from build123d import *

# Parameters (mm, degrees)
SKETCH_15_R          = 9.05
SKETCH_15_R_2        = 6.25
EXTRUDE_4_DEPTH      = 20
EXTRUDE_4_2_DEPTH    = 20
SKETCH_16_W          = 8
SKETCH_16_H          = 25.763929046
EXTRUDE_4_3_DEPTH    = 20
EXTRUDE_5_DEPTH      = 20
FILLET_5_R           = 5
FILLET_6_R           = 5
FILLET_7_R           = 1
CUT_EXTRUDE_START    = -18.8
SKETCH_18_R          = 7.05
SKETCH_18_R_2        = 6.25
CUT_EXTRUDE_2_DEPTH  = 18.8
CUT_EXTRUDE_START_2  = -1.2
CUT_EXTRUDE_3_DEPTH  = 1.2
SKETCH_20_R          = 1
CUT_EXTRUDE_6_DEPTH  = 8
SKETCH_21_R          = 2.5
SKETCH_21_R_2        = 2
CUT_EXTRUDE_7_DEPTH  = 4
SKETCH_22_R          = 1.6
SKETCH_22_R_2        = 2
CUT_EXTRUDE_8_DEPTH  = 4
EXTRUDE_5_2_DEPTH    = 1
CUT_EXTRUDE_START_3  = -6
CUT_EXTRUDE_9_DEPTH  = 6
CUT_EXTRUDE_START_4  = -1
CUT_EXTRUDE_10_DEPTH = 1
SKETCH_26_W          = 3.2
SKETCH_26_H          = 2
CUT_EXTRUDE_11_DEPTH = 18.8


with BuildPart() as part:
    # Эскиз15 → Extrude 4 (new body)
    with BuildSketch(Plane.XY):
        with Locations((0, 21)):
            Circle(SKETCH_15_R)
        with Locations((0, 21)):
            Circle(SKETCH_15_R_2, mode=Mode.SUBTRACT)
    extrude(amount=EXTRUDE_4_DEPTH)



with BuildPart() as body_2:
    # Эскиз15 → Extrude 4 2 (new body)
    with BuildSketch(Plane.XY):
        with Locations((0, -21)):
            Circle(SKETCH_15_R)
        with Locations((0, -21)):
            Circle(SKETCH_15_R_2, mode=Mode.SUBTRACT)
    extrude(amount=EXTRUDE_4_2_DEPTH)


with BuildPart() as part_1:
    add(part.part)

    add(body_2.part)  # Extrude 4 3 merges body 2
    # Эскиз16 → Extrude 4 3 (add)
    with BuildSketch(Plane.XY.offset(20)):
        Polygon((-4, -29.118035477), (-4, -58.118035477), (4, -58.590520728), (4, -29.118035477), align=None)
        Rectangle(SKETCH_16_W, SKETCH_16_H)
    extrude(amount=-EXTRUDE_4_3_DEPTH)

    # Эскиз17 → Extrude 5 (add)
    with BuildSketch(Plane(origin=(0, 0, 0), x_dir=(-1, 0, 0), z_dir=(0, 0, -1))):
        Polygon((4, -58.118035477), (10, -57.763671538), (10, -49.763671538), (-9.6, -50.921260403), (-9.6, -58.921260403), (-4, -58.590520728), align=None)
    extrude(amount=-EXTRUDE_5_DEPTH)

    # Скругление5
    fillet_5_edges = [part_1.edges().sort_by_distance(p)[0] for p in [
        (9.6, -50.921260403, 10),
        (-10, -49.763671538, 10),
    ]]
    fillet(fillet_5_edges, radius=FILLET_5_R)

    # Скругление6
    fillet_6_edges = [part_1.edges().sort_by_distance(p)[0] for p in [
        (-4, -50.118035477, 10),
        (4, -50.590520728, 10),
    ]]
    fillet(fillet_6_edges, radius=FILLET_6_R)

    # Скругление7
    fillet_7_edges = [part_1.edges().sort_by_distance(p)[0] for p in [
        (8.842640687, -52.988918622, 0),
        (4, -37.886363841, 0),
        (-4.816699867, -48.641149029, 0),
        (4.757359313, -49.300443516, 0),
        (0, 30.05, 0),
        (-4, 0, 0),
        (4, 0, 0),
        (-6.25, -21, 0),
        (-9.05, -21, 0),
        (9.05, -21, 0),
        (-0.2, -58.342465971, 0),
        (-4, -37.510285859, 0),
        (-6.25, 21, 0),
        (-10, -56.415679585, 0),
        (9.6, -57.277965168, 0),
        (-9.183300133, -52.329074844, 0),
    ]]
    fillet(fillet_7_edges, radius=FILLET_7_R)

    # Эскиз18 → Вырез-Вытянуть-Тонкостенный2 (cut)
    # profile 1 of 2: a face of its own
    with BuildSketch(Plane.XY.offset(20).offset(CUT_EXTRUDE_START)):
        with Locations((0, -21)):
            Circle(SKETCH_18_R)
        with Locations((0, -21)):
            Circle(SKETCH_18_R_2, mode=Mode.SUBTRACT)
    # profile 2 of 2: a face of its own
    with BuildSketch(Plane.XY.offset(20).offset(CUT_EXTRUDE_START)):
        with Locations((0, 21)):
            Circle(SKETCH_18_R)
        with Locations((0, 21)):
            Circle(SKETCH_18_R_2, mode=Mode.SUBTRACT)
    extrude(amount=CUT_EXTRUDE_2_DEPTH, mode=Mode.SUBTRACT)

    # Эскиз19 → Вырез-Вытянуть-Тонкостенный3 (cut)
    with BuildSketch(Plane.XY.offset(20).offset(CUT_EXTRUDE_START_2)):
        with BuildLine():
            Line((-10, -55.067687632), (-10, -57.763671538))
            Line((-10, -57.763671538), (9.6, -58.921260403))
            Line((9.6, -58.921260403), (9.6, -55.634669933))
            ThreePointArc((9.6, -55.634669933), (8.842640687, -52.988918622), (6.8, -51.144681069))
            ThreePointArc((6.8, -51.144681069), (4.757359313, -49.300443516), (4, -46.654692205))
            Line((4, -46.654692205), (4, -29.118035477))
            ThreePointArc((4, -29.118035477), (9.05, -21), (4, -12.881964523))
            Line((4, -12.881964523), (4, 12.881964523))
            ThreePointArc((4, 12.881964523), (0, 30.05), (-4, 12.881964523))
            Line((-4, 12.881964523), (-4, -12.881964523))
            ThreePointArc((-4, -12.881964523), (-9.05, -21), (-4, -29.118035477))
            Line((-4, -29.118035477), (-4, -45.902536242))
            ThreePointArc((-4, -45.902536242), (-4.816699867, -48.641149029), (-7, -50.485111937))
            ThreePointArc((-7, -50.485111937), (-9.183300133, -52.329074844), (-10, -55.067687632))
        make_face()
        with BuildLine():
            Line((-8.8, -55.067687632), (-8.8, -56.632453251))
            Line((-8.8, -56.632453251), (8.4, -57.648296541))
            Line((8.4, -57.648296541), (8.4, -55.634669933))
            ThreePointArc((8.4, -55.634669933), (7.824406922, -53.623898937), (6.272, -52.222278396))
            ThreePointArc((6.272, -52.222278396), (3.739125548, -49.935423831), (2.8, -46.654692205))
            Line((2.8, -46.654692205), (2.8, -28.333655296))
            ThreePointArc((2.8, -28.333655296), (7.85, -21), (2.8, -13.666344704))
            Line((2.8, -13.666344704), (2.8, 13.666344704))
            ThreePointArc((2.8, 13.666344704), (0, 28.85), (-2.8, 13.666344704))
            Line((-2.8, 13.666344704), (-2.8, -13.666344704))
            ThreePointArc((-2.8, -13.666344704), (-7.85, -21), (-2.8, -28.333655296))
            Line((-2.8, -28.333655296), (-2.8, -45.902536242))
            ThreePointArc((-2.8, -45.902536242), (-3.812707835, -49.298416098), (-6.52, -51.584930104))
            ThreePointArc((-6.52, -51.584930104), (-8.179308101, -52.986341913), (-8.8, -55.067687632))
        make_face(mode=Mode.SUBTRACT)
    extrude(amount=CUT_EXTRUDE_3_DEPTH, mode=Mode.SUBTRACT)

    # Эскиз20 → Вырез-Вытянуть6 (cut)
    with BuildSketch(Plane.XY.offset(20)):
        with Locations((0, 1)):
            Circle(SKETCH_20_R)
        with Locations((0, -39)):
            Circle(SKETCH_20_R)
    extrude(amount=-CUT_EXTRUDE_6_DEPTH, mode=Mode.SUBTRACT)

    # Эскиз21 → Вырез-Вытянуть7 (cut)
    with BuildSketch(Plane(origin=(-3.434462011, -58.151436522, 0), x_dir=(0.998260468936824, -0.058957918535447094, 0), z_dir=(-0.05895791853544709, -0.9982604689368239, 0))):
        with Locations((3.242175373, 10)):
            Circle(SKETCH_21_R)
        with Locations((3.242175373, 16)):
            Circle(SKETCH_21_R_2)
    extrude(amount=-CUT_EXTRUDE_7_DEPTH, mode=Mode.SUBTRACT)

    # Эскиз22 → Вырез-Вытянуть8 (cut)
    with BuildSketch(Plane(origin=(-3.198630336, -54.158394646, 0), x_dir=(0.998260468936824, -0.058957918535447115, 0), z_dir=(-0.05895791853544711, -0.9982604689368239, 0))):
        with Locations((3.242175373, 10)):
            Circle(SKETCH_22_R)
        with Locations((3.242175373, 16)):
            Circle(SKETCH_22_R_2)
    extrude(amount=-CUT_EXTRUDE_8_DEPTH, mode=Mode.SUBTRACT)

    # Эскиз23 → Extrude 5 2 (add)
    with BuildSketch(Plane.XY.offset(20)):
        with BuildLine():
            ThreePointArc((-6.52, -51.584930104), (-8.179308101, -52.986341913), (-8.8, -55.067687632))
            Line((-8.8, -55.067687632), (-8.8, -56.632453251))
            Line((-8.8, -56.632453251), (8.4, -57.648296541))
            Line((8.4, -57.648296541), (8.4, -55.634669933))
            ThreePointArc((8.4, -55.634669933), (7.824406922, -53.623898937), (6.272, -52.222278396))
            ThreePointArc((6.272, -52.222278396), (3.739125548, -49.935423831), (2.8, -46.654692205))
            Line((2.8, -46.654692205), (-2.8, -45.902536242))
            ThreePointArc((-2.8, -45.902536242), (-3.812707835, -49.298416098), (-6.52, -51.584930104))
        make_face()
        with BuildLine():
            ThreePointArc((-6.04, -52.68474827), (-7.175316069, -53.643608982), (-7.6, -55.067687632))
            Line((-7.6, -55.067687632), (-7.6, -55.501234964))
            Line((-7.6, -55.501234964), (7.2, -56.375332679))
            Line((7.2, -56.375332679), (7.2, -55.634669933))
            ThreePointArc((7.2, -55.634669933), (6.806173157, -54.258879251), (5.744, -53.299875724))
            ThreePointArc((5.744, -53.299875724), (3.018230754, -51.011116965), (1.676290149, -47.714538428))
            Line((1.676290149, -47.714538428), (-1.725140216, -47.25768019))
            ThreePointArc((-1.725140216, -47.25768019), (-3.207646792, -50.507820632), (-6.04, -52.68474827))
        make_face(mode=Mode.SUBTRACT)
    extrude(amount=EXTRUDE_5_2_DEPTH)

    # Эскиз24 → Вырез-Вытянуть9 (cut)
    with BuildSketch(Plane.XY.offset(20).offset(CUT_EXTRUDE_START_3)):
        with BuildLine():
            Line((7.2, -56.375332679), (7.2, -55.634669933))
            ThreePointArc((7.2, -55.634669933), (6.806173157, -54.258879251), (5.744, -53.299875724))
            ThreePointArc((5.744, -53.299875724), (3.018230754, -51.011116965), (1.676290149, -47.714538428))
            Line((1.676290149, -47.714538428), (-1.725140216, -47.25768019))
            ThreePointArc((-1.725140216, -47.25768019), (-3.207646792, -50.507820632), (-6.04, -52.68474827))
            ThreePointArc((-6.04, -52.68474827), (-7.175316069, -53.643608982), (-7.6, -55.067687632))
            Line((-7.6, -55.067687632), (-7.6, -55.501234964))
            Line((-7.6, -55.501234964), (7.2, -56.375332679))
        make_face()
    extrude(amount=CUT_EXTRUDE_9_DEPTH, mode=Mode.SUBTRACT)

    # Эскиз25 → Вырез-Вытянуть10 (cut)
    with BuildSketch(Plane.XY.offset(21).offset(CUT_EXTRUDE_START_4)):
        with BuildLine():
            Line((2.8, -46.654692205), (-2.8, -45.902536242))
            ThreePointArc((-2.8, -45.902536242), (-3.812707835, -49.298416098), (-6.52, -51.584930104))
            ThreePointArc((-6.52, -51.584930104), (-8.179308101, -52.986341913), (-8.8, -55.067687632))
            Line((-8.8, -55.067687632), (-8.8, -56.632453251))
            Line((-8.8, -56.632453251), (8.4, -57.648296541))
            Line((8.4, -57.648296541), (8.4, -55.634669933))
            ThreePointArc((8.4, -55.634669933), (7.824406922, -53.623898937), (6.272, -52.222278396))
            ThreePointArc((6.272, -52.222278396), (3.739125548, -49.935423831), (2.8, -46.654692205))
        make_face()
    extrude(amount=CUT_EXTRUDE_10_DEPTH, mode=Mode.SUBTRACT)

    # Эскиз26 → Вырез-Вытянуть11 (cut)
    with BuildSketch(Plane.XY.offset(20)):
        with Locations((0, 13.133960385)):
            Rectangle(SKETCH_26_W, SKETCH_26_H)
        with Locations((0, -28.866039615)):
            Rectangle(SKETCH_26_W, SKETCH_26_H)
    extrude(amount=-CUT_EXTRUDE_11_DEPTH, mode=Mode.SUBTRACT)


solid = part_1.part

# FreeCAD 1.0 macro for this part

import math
import FreeCAD as App
import Part
import Sketcher
Q = App.Units.Quantity


def edges_at(feature, points):
    """Names of the edges that pass closest to the given points."""
    edges = feature.Shape.Edges
    near = lambda p: min(range(len(edges)), key=lambda i: edges[i].distToShape(Part.Vertex(*p))[0])
    return sorted({f"Edge{near(p) + 1}" for p in points})


def add_polygon(sketch, points):
    """Adds a closed chain of lines whose ends are joined by coincident constraints."""
    first, n = sketch.GeometryCount, len(points)
    for a, b in zip(points, points[1:] + points[:1]):
        sketch.addGeometry(Part.LineSegment(App.Vector(*a, 0), App.Vector(*b, 0)), False)
    for i in range(n):
        sketch.addConstraint(Sketcher.Constraint("Coincident", first + i, 2, first + (i + 1) % n, 1))

doc = App.newDocument("Part")
params = doc.addObject("Spreadsheet::Sheet", "Params")
for row, (alias, value) in enumerate([
    ("sketch1_diameter", "18.1 mm"),
    ("sketch1_diameter2", "12.5 mm"),
    ("pad1_length", "20 mm"),
    ("sketch2_diameter", "18.1 mm"),
    ("sketch2_diameter2", "12.5 mm"),
    ("pad2_length", "20 mm"),
    ("sketch3_width", "8 mm"),
    ("sketch3_height", "29 mm"),
    ("pad3_length", "20 mm"),
    ("sketch4_height", "8 mm"),
    ("pad4_length", "20 mm"),
    ("fillet_radius", "5 mm"),
    ("fillet2_radius", "5 mm"),
    ("fillet3_radius", "1 mm"),
    ("sketch5_diameter", "14.1 mm"),
    ("sketch5_diameter2", "12.5 mm"),
    ("pocket1_length", "18.8 mm"),
    ("sketch6_radius", "5 mm"),
    ("sketch6_radius2", "3.8 mm"),
    ("sketch6_radius3", "9.05 mm"),
    ("sketch6_radius4", "7.85 mm"),
    ("pocket2_length", "1.2 mm"),
    ("sketch7_diameter", "2 mm"),
    ("pocket3_length", "8 mm"),
    ("sketch8_diameter", "5 mm"),
    ("sketch8_diameter2", "4 mm"),
    ("pocket4_length", "4 mm"),
    ("sketch9_diameter", "4 mm"),
    ("sketch9_diameter2", "3.2 mm"),
    ("pocket5_length", "4 mm"),
    ("sketch10_radius", "3.8 mm"),
    ("sketch10_radius2", "6.2 mm"),
    ("sketch10_radius3", "2.6 mm"),
    ("pad5_length", "1 mm"),
    ("sketch11_radius", "2.6 mm"),
    ("sketch11_radius2", "7.4 mm"),
    ("pocket6_length", "6 mm"),
    ("sketch12_radius", "6.2 mm"),
    ("sketch12_radius2", "3.8 mm"),
    ("pocket7_length", "1 mm"),
    ("sketch13_height", "2 mm"),
    ("sketch13_width", "3.2 mm"),
    ("pocket8_length", "18.8 mm"),
], start=1):
    params.set(f"A{row}", alias)
    params.set(f"B{row}", "=" + value)
    params.setAlias(f"B{row}", alias)

body = doc.addObject("PartDesign::Body", "Body")

# Sketch on XY plane
sketch1 = body.newObject("Sketcher::SketchObject", "Sketch")
sketch1.AttachmentSupport = (doc.getObject("XY_Plane"), [""])
sketch1.MapMode = "FlatFace"
sketch1.addGeometry([
    Part.Circle(App.Vector(0, 21, 0), App.Vector(0, 0, 1), 9.05),
    Part.Circle(App.Vector(0, 21, 0), App.Vector(0, 0, 1), 6.25),
], False)
sketch1.addConstraint([
    Sketcher.Constraint("Coincident", 1, 3, 0, 3),
    Sketcher.Constraint("PointOnObject", 0, 3, -2),
    Sketcher.Constraint("Diameter", 0, Q("18.1 mm")),
    Sketcher.Constraint("Diameter", 1, Q("12.5 mm")),
    Sketcher.Constraint("DistanceY", -1, 1, 0, 3, Q("21 mm")),
])
sketch1.setExpression("Constraints[2]", "Params.sketch1_diameter")
sketch1.setExpression("Constraints[3]", "Params.sketch1_diameter2")
pad1 = body.newObject("PartDesign::Pad", "Pad")
pad1.Profile = sketch1
pad1.setExpression("Length", "Params.pad1_length")
body2 = doc.addObject("PartDesign::Body", "Body001")

# Sketch on XY plane
sketch2 = body2.newObject("Sketcher::SketchObject", "Sketch001")
sketch2.AttachmentSupport = (doc.getObject("XY_Plane001"), [""])
sketch2.MapMode = "FlatFace"
sketch2.addGeometry([
    Part.Circle(App.Vector(0, -21, 0), App.Vector(0, 0, 1), 9.05),
    Part.Circle(App.Vector(0, -21, 0), App.Vector(0, 0, 1), 6.25),
], False)
sketch2.addConstraint([
    Sketcher.Constraint("Coincident", 1, 3, 0, 3),
    Sketcher.Constraint("PointOnObject", 0, 3, -2),
    Sketcher.Constraint("Diameter", 0, Q("18.1 mm")),
    Sketcher.Constraint("Diameter", 1, Q("12.5 mm")),
    Sketcher.Constraint("DistanceY", 0, 3, -1, 1, Q("21 mm")),
])
sketch2.setExpression("Constraints[2]", "Params.sketch2_diameter")
sketch2.setExpression("Constraints[3]", "Params.sketch2_diameter2")
pad2 = body2.newObject("PartDesign::Pad", "Pad001")
pad2.Profile = sketch2
pad2.setExpression("Length", "Params.pad2_length")
body.AllowCompound = True
doc.recompute()

boolean = body.newObject("PartDesign::Boolean", "Boolean")
boolean.Type = "Fuse"
boolean.addObjects([body2])

# Sketch on XY plane
sketch3 = body.newObject("Sketcher::SketchObject", "Sketch002")
sketch3.AttachmentSupport = (doc.getObject("XY_Plane"), [""])
sketch3.MapMode = "FlatFace"
sketch3.AttachmentOffset = App.Placement(App.Vector(0, 0, 20), App.Rotation())
add_polygon(sketch3, [(-4, -29.118035), (-4, -58.118035), (4, -58.590521), (4, -29.118035)])  # lines 0-3
add_polygon(sketch3, [(-4, 12.881965), (-4, -12.881965), (4, -12.881965), (4, 12.881965)])  # lines 4-7
sketch3.addConstraint([
    Sketcher.Constraint("Vertical", 0),
    Sketcher.Constraint("Vertical", 2),
    Sketcher.Constraint("Horizontal", 3),
    Sketcher.Constraint("Vertical", 4),
    Sketcher.Constraint("Horizontal", 5),
    Sketcher.Constraint("Vertical", 6),
    Sketcher.Constraint("Horizontal", 7),
    Sketcher.Constraint("Symmetric", 4, 2, 6, 2, -1, 1),
    Sketcher.Constraint("Vertical", 3, 2, 4, 2),
    Sketcher.Constraint("Vertical", 2, 2, 5, 2),
    Sketcher.Constraint("DistanceX", 3, 2, 3, 1, Q("8 mm")),
    Sketcher.Constraint("DistanceY", 0, 2, 0, 1, Q("29 mm")),
    Sketcher.Constraint("DistanceY", 2, 2, 6, 2, Q("42 mm")),
    Sketcher.Constraint("Angle", 1, Q("-3.38 deg")),
    Sketcher.Constraint("DistanceY", 4, 2, 4, 1, Q("25.763929 mm")),
])
sketch3.setExpression("Constraints[18]", "Params.sketch3_width")
sketch3.setExpression("Constraints[19]", "Params.sketch3_height")
pad3 = body.newObject("PartDesign::Pad", "Pad002")
pad3.Profile = sketch3
pad3.setExpression("Length", "Params.pad3_length")
pad3.Reversed = True

# Sketch on XY plane
sketch4 = body.newObject("Sketcher::SketchObject", "Sketch003")
sketch4.AttachmentSupport = (doc.getObject("XY_Plane"), [""])
sketch4.MapMode = "FlatFace"
add_polygon(sketch4, [(-4, -58.118035), (-10, -57.763672), (-10, -49.763672), (9.6, -50.92126), (9.6, -58.92126), (4, -58.590521)])  # lines 0-5
sketch4.addConstraint([
    Sketcher.Constraint("Vertical", 1),
    Sketcher.Constraint("Vertical", 3),
    Sketcher.Constraint("Parallel", 0, 2),
    Sketcher.Constraint("Parallel", 2, 4),
    Sketcher.Constraint("Parallel", 4, 5),
    Sketcher.Constraint("DistanceY", 1, 1, 1, 2, Q("8 mm")),
    Sketcher.Constraint("DistanceX", 0, 2, -1, 1, Q("10 mm")),
    Sketcher.Constraint("DistanceX", -1, 1, 4, 2, Q("4 mm")),
    Sketcher.Constraint("DistanceX", 5, 2, -1, 1, Q("4 mm")),
    Sketcher.Constraint("DistanceX", -1, 1, 2, 2, Q("9.6 mm")),
    Sketcher.Constraint("Angle", 0, Q("176.62 deg")),
    Sketcher.Constraint("DistanceY", 0, 2, -1, 1, Q("57.763672 mm")),
])
sketch4.setExpression("Constraints[11]", "Params.sketch4_height")
pad4 = body.newObject("PartDesign::Pad", "Pad003")
pad4.Profile = sketch4
pad4.setExpression("Length", "Params.pad4_length")
doc.recompute()

fillet = body.newObject("PartDesign::Fillet", "Fillet")
fillet.Base = (pad4, edges_at(pad4, [(9.6, -50.921, 10), (-10, -49.764, 10)]))
fillet.setExpression("Radius", "Params.fillet_radius")
doc.recompute()

fillet2 = body.newObject("PartDesign::Fillet", "Fillet001")
fillet2.Base = (fillet, edges_at(fillet, [(-4, -50.118, 10), (4, -50.591, 10)]))
fillet2.setExpression("Radius", "Params.fillet2_radius")
doc.recompute()

fillet3 = body.newObject("PartDesign::Fillet", "Fillet002")
fillet3.Base = (fillet2, edges_at(fillet2, [
    (8.843, -52.989, 0),
    (4, -37.886, 0),
    (-4.817, -48.641, 0),
    (4.757, -49.3, 0),
    (0, 30.05, 0),
    (-4, 0, 0),
    (4, 0, 0),
    (-6.25, -21, 0),
    (-9.05, -21, 0),
    (9.05, -21, 0),
    (0, -58.354, 0),
    (-4, -37.51, 0),
    (-6.25, 21, 0),
    (-10, -56.416, 0),
    (9.6, -57.278, 0),
    (-9.183, -52.329, 0),
]))
fillet3.setExpression("Radius", "Params.fillet3_radius")

# Sketch on XY plane
sketch5 = body.newObject("Sketcher::SketchObject", "Sketch004")
sketch5.AttachmentSupport = (doc.getObject("XY_Plane"), [""])
sketch5.MapMode = "FlatFace"
sketch5.AttachmentOffset = App.Placement(App.Vector(0, 0, 1.2), App.Rotation())
sketch5.addGeometry([
    Part.Circle(App.Vector(0, -21, 0), App.Vector(0, 0, 1), 7.05),
    Part.Circle(App.Vector(0, -21, 0), App.Vector(0, 0, 1), 6.25),
    Part.Circle(App.Vector(0, 21, 0), App.Vector(0, 0, 1), 7.05),
    Part.Circle(App.Vector(0, 21, 0), App.Vector(0, 0, 1), 6.25),
], False)
sketch5.addConstraint([
    Sketcher.Constraint("Coincident", 1, 3, 0, 3),
    Sketcher.Constraint("Coincident", 3, 3, 2, 3),
    Sketcher.Constraint("Equal", 0, 2),
    Sketcher.Constraint("Equal", 1, 3),
    Sketcher.Constraint("Symmetric", 0, 3, 2, 3, -1, 1),
    Sketcher.Constraint("PointOnObject", 0, 3, -2),
    Sketcher.Constraint("Diameter", 0, Q("14.1 mm")),
    Sketcher.Constraint("Diameter", 1, Q("12.5 mm")),
    Sketcher.Constraint("DistanceY", 0, 3, -1, 1, Q("21 mm")),
])
sketch5.setExpression("Constraints[6]", "Params.sketch5_diameter")
sketch5.setExpression("Constraints[7]", "Params.sketch5_diameter2")
pocket1 = body.newObject("PartDesign::Pocket", "Pocket")
pocket1.Profile = sketch5
pocket1.setExpression("Length", "Params.pocket1_length")
pocket1.Reversed = True

# Sketch on XY plane
sketch6 = body.newObject("Sketcher::SketchObject", "Sketch005")
sketch6.AttachmentSupport = (doc.getObject("XY_Plane"), [""])
sketch6.MapMode = "FlatFace"
sketch6.AttachmentOffset = App.Placement(App.Vector(0, 0, 18.8), App.Rotation())
sketch6.addGeometry([
    Part.LineSegment(App.Vector(-10, -55.067688, 0), App.Vector(-10, -57.763672, 0)),  # 0
    Part.LineSegment(App.Vector(-10, -57.763672, 0), App.Vector(9.6, -58.92126, 0)),  # 1
    Part.LineSegment(App.Vector(9.6, -58.92126, 0), App.Vector(9.6, -55.63467, 0)),  # 2
    Part.ArcOfCircle(Part.Circle(App.Vector(4.6, -55.63467, 0), App.Vector(0, 0, 1), 5), math.radians(0), math.radians(63.896119)),  # 3
    Part.ArcOfCircle(Part.Circle(App.Vector(9, -46.654692, 0), App.Vector(0, 0, 1), 5), math.radians(180), math.radians(243.896119)),  # 4
    Part.LineSegment(App.Vector(4, -46.654692, 0), App.Vector(4, -29.118035, 0)),  # 5
    Part.ArcOfCircle(Part.Circle(App.Vector(0, -21, 0), App.Vector(0, 0, 1), 9.05), math.radians(-63.769147), math.radians(63.769147)),  # 6
    Part.LineSegment(App.Vector(4, -12.881965, 0), App.Vector(4, 12.881965, 0)),  # 7
    Part.ArcOfCircle(Part.Circle(App.Vector(0, 21, 0), App.Vector(0, 0, 1), 9.05), math.radians(-63.769147), math.radians(243.769147)),  # 8
    Part.LineSegment(App.Vector(-4, 12.881965, 0), App.Vector(-4, -12.881965, 0)),  # 9
    Part.ArcOfCircle(Part.Circle(App.Vector(0, -21, 0), App.Vector(0, 0, 1), 9.05), math.radians(116.230853), math.radians(243.769147)),  # 10
    Part.LineSegment(App.Vector(-4, -29.118035, 0), App.Vector(-4, -45.902536, 0)),  # 11
    Part.ArcOfCircle(Part.Circle(App.Vector(-9, -45.902536, 0), App.Vector(0, 0, 1), 5), math.radians(-66.421822), math.radians(0)),  # 12
    Part.ArcOfCircle(Part.Circle(App.Vector(-5, -55.067688, 0), App.Vector(0, 0, 1), 5), math.radians(113.578178), math.radians(180)),  # 13
    Part.LineSegment(App.Vector(-8.8, -56.632453, 0), App.Vector(-8.8, -55.067688, 0)),  # 14
    Part.ArcOfCircle(Part.Circle(App.Vector(-5, -55.067688, 0), App.Vector(0, 0, 1), 3.8), math.radians(113.578178), math.radians(180)),  # 15
    Part.ArcOfCircle(Part.Circle(App.Vector(-9, -45.902536, 0), App.Vector(0, 0, 1), 6.2), math.radians(-66.421822), math.radians(0)),  # 16
    Part.LineSegment(App.Vector(-2.8, -45.902536, 0), App.Vector(-2.8, -28.333655, 0)),  # 17
    Part.ArcOfCircle(Part.Circle(App.Vector(0, -21, 0), App.Vector(0, 0, 1), 7.85), math.radians(110.896927), math.radians(249.103073)),  # 18
    Part.LineSegment(App.Vector(-2.8, -13.666345, 0), App.Vector(-2.8, 13.666345, 0)),  # 19
    Part.ArcOfCircle(Part.Circle(App.Vector(0, 21, 0), App.Vector(0, 0, 1), 7.85), math.radians(-69.103073), math.radians(249.103073)),  # 20
    Part.LineSegment(App.Vector(2.8, 13.666345, 0), App.Vector(2.8, -13.666345, 0)),  # 21
    Part.ArcOfCircle(Part.Circle(App.Vector(0, -21, 0), App.Vector(0, 0, 1), 7.85), math.radians(-69.103073), math.radians(69.103073)),  # 22
    Part.LineSegment(App.Vector(2.8, -28.333655, 0), App.Vector(2.8, -46.654692, 0)),  # 23
    Part.ArcOfCircle(Part.Circle(App.Vector(9, -46.654692, 0), App.Vector(0, 0, 1), 6.2), math.radians(180), math.radians(243.896119)),  # 24
    Part.ArcOfCircle(Part.Circle(App.Vector(4.6, -55.63467, 0), App.Vector(0, 0, 1), 3.8), math.radians(0), math.radians(63.896119)),  # 25
    Part.LineSegment(App.Vector(8.4, -55.63467, 0), App.Vector(8.4, -57.648297, 0)),  # 26
    Part.LineSegment(App.Vector(8.4, -57.648297, 0), App.Vector(-8.8, -56.632453, 0)),  # 27
], False)
sketch6.addConstraint([
    Sketcher.Constraint("Coincident", 0, 2, 1, 1),
    Sketcher.Constraint("Coincident", 1, 2, 2, 1),
    Sketcher.Constraint("Tangent", 2, 2, 3, 1),
    Sketcher.Constraint("Tangent", 3, 2, 4, 2),
    Sketcher.Constraint("Tangent", 4, 1, 5, 1),
    Sketcher.Constraint("Coincident", 5, 2, 6, 1),
    Sketcher.Constraint("Coincident", 6, 2, 7, 1),
    Sketcher.Constraint("Coincident", 7, 2, 8, 1),
    Sketcher.Constraint("Coincident", 8, 2, 9, 1),
    Sketcher.Constraint("Coincident", 9, 2, 10, 1),
    Sketcher.Constraint("Coincident", 10, 2, 11, 1),
    Sketcher.Constraint("Tangent", 11, 2, 12, 2),
    Sketcher.Constraint("Tangent", 12, 1, 13, 1),
    Sketcher.Constraint("Tangent", 13, 2, 0, 1),
    Sketcher.Constraint("Tangent", 14, 2, 15, 2),
    Sketcher.Constraint("Tangent", 15, 1, 16, 1),
    Sketcher.Constraint("Tangent", 16, 2, 17, 1),
    Sketcher.Constraint("Coincident", 17, 2, 18, 2),
    Sketcher.Constraint("Coincident", 18, 1, 19, 1),
    Sketcher.Constraint("Coincident", 19, 2, 20, 2),
    Sketcher.Constraint("Coincident", 20, 1, 21, 1),
    Sketcher.Constraint("Coincident", 21, 2, 22, 2),
    Sketcher.Constraint("Coincident", 22, 1, 23, 1),
    Sketcher.Constraint("Tangent", 23, 2, 24, 1),
    Sketcher.Constraint("Tangent", 24, 2, 25, 2),
    Sketcher.Constraint("Tangent", 25, 1, 26, 1),
    Sketcher.Constraint("Coincident", 26, 2, 27, 1),
    Sketcher.Constraint("Coincident", 27, 2, 14, 1),
    Sketcher.Constraint("Vertical", 0),
    Sketcher.Constraint("Vertical", 2),
    Sketcher.Constraint("Vertical", 5),
    Sketcher.Constraint("Vertical", 7),
    Sketcher.Constraint("Vertical", 9),
    Sketcher.Constraint("Vertical", 11),
    Sketcher.Constraint("Vertical", 14),
    Sketcher.Constraint("Vertical", 17),
    Sketcher.Constraint("Vertical", 19),
    Sketcher.Constraint("Vertical", 21),
    Sketcher.Constraint("Vertical", 23),
    Sketcher.Constraint("Vertical", 26),
    Sketcher.Constraint("Coincident", 10, 3, 6, 3),
    Sketcher.Constraint("Coincident", 15, 3, 13, 3),
    Sketcher.Constraint("Coincident", 16, 3, 12, 3),
    Sketcher.Constraint("Coincident", 18, 3, 6, 3),
    Sketcher.Constraint("Coincident", 20, 3, 8, 3),
    Sketcher.Constraint("Coincident", 22, 3, 6, 3),
    Sketcher.Constraint("Coincident", 24, 3, 4, 3),
    Sketcher.Constraint("Coincident", 25, 3, 3, 3),
    Sketcher.Constraint("Equal", 3, 4),
    Sketcher.Constraint("Equal", 6, 8),
    Sketcher.Constraint("Equal", 8, 10),
    Sketcher.Constraint("Equal", 4, 12),
    Sketcher.Constraint("Equal", 12, 13),
    Sketcher.Constraint("Equal", 18, 20),
    Sketcher.Constraint("Equal", 20, 22),
    Sketcher.Constraint("Equal", 16, 24),
    Sketcher.Constraint("Symmetric", 6, 3, 8, 3, -1, 1),
    Sketcher.Constraint("Symmetric", 7, 2, 8, 2, -2),
    Sketcher.Constraint("Parallel", 1, 27),
    Sketcher.Constraint("Horizontal", 5, 2, 10, 2),
    Sketcher.Constraint("Horizontal", 19, 2, 20, 1),
    Sketcher.Constraint("Vertical", 5, 2, 6, 2),
    Sketcher.Constraint("Vertical", 17, 2, 18, 1),
    Sketcher.Constraint("Radius", 3, Q("5 mm")),
    Sketcher.Constraint("Radius", 15, Q("3.8 mm")),
    Sketcher.Constraint("Radius", 6, Q("9.05 mm")),
    Sketcher.Constraint("Radius", 18, Q("7.85 mm")),
    Sketcher.Constraint("DistanceX", -1, 1, 4, 3, Q("9 mm")),
    Sketcher.Constraint("DistanceY", 6, 3, -1, 1, Q("21 mm")),
    Sketcher.Constraint("DistanceX", 13, 3, -1, 1, Q("5 mm")),
    Sketcher.Constraint("DistanceX", 23, 2, 3, 2, Q("4 mm")),
    Sketcher.Constraint("Angle", 1, Q("-3.38 deg")),
    Sketcher.Constraint("DistanceY", 11, 2, 11, 1, Q("16.784501 mm")),
    Sketcher.Constraint("DistanceY", 0, 2, 25, 3, Q("2.129002 mm")),
    Sketcher.Constraint("DistanceY", 0, 2, 0, 1, Q("2.695984 mm")),
    Sketcher.Constraint("DistanceY", 14, 1, 14, 2, Q("1.564766 mm")),
])
sketch6.setExpression("Constraints[63]", "Params.sketch6_radius")
sketch6.setExpression("Constraints[64]", "Params.sketch6_radius2")
sketch6.setExpression("Constraints[65]", "Params.sketch6_radius3")
sketch6.setExpression("Constraints[66]", "Params.sketch6_radius4")
pocket2 = body.newObject("PartDesign::Pocket", "Pocket001")
pocket2.Profile = sketch6
pocket2.setExpression("Length", "Params.pocket2_length")
pocket2.Reversed = True

# Sketch on XY plane
sketch7 = body.newObject("Sketcher::SketchObject", "Sketch006")
sketch7.AttachmentSupport = (doc.getObject("XY_Plane"), [""])
sketch7.MapMode = "FlatFace"
sketch7.AttachmentOffset = App.Placement(App.Vector(0, 0, 20), App.Rotation())
sketch7.addGeometry([
    Part.Circle(App.Vector(0, 1, 0), App.Vector(0, 0, 1), 1),
    Part.Circle(App.Vector(0, -39, 0), App.Vector(0, 0, 1), 1),
], False)
sketch7.addConstraint([
    Sketcher.Constraint("Equal", 0, 1),
    Sketcher.Constraint("PointOnObject", 0, 3, -2),
    Sketcher.Constraint("PointOnObject", 1, 3, -2),
    Sketcher.Constraint("Diameter", 0, Q("2 mm")),
    Sketcher.Constraint("DistanceY", -1, 1, 0, 3, Q("1 mm")),
    Sketcher.Constraint("DistanceY", 1, 3, -1, 1, Q("39 mm")),
])
sketch7.setExpression("Constraints[3]", "Params.sketch7_diameter")
pocket3 = body.newObject("PartDesign::Pocket", "Pocket002")
pocket3.Profile = sketch7
pocket3.setExpression("Length", "Params.pocket3_length")

# Sketch on an angled plane
sketch8 = body.newObject("Sketcher::SketchObject", "Sketch007")
sketch8.Placement = App.Placement(App.Vector(-3.434462, -58.151437, 0), App.Rotation(App.Vector(0.998260469, -0.058957919, 0), App.Vector(0, 0, 1), App.Vector(-0.058957919, -0.998260469, 0), "ZXY"))
sketch8.addGeometry([
    Part.Circle(App.Vector(3.242175, 10, 0), App.Vector(0, 0, 1), 2.5),
    Part.Circle(App.Vector(3.242175, 16, 0), App.Vector(0, 0, 1), 2),
], False)
sketch8.addConstraint([
    Sketcher.Constraint("Vertical", 0, 3, 1, 3),
    Sketcher.Constraint("Diameter", 0, Q("5 mm")),
    Sketcher.Constraint("Diameter", 1, Q("4 mm")),
    Sketcher.Constraint("DistanceY", -1, 1, 0, 3, Q("10 mm")),
    Sketcher.Constraint("DistanceY", -1, 1, 1, 3, Q("16 mm")),
    Sketcher.Constraint("DistanceX", -1, 1, 0, 3, Q("3.242175 mm")),
])
sketch8.setExpression("Constraints[1]", "Params.sketch8_diameter")
sketch8.setExpression("Constraints[2]", "Params.sketch8_diameter2")
pocket4 = body.newObject("PartDesign::Pocket", "Pocket003")
pocket4.Profile = sketch8
pocket4.setExpression("Length", "Params.pocket4_length")

# Sketch on an angled plane
sketch9 = body.newObject("Sketcher::SketchObject", "Sketch008")
sketch9.Placement = App.Placement(App.Vector(-3.19863, -54.158395, 0), App.Rotation(App.Vector(0.998260469, -0.058957919, 0), App.Vector(0, 0, 1), App.Vector(-0.058957919, -0.998260469, 0), "ZXY"))
sketch9.addGeometry([
    Part.Circle(App.Vector(3.242175, 10, 0), App.Vector(0, 0, 1), 1.6),
    Part.Circle(App.Vector(3.242175, 16, 0), App.Vector(0, 0, 1), 2),
], False)
sketch9.addConstraint([
    Sketcher.Constraint("Vertical", 0, 3, 1, 3),
    Sketcher.Constraint("Diameter", 1, Q("4 mm")),
    Sketcher.Constraint("Diameter", 0, Q("3.2 mm")),
    Sketcher.Constraint("DistanceY", -1, 1, 0, 3, Q("10 mm")),
    Sketcher.Constraint("DistanceY", -1, 1, 1, 3, Q("16 mm")),
    Sketcher.Constraint("DistanceX", -1, 1, 0, 3, Q("3.242175 mm")),
])
sketch9.setExpression("Constraints[1]", "Params.sketch9_diameter")
sketch9.setExpression("Constraints[2]", "Params.sketch9_diameter2")
pocket5 = body.newObject("PartDesign::Pocket", "Pocket004")
pocket5.Profile = sketch9
pocket5.setExpression("Length", "Params.pocket5_length")

# Sketch on XY plane
sketch10 = body.newObject("Sketcher::SketchObject", "Sketch009")
sketch10.AttachmentSupport = (doc.getObject("XY_Plane"), [""])
sketch10.MapMode = "FlatFace"
sketch10.AttachmentOffset = App.Placement(App.Vector(0, 0, 20), App.Rotation())
sketch10.addGeometry([
    Part.ArcOfCircle(Part.Circle(App.Vector(-5, -55.067688, 0), App.Vector(0, 0, 1), 3.8), math.radians(113.578178), math.radians(180)),  # 0
    Part.LineSegment(App.Vector(-8.8, -55.067688, 0), App.Vector(-8.8, -56.632453, 0)),  # 1
    Part.LineSegment(App.Vector(-8.8, -56.632453, 0), App.Vector(8.4, -57.648297, 0)),  # 2
    Part.LineSegment(App.Vector(8.4, -57.648297, 0), App.Vector(8.4, -55.63467, 0)),  # 3
    Part.ArcOfCircle(Part.Circle(App.Vector(4.6, -55.63467, 0), App.Vector(0, 0, 1), 3.8), math.radians(0), math.radians(63.896119)),  # 4
    Part.ArcOfCircle(Part.Circle(App.Vector(9, -46.654692, 0), App.Vector(0, 0, 1), 6.2), math.radians(180), math.radians(243.896119)),  # 5
    Part.LineSegment(App.Vector(2.8, -46.654692, 0), App.Vector(-2.8, -45.902536, 0)),  # 6
    Part.ArcOfCircle(Part.Circle(App.Vector(-9, -45.902536, 0), App.Vector(0, 0, 1), 6.2), math.radians(-66.421822), math.radians(0)),  # 7
    Part.ArcOfCircle(Part.Circle(App.Vector(-5, -55.067688, 0), App.Vector(0, 0, 1), 2.6), math.radians(113.578178), math.radians(180)),  # 8
    Part.ArcOfCircle(Part.Circle(App.Vector(-9, -45.902536, 0), App.Vector(0, 0, 1), 7.4), math.radians(-66.421822), math.radians(-10.551985)),  # 9
    Part.LineSegment(App.Vector(-1.72514, -47.25768, 0), App.Vector(1.67629, -47.714538, 0)),  # 10
    Part.ArcOfCircle(Part.Circle(App.Vector(9, -46.654692, 0), App.Vector(0, 0, 1), 7.4), math.radians(-171.765641), math.radians(-116.103881)),  # 11
    Part.ArcOfCircle(Part.Circle(App.Vector(4.6, -55.63467, 0), App.Vector(0, 0, 1), 2.6), math.radians(0), math.radians(63.896119)),  # 12
    Part.LineSegment(App.Vector(7.2, -55.63467, 0), App.Vector(7.2, -56.375333, 0)),  # 13
    Part.LineSegment(App.Vector(7.2, -56.375333, 0), App.Vector(-7.6, -55.501235, 0)),  # 14
    Part.LineSegment(App.Vector(-7.6, -55.501235, 0), App.Vector(-7.6, -55.067688, 0)),  # 15
], False)
sketch10.addConstraint([
    Sketcher.Constraint("Tangent", 0, 2, 1, 1),
    Sketcher.Constraint("Coincident", 1, 2, 2, 1),
    Sketcher.Constraint("Coincident", 2, 2, 3, 1),
    Sketcher.Constraint("Tangent", 3, 2, 4, 1),
    Sketcher.Constraint("Tangent", 4, 2, 5, 2),
    Sketcher.Constraint("Coincident", 5, 1, 6, 1),
    Sketcher.Constraint("Coincident", 6, 2, 7, 2),
    Sketcher.Constraint("Tangent", 7, 1, 0, 1),
    Sketcher.Constraint("Tangent", 8, 1, 9, 1),
    Sketcher.Constraint("Coincident", 9, 2, 10, 1),
    Sketcher.Constraint("Coincident", 10, 2, 11, 1),
    Sketcher.Constraint("Tangent", 11, 2, 12, 2),
    Sketcher.Constraint("Tangent", 12, 1, 13, 1),
    Sketcher.Constraint("Coincident", 13, 2, 14, 1),
    Sketcher.Constraint("Coincident", 14, 2, 15, 1),
    Sketcher.Constraint("Tangent", 15, 2, 8, 2),
    Sketcher.Constraint("Vertical", 1),
    Sketcher.Constraint("Vertical", 3),
    Sketcher.Constraint("Vertical", 13),
    Sketcher.Constraint("Vertical", 15),
    Sketcher.Constraint("Coincident", 8, 3, 0, 3),
    Sketcher.Constraint("Coincident", 9, 3, 7, 3),
    Sketcher.Constraint("Coincident", 11, 3, 5, 3),
    Sketcher.Constraint("Coincident", 12, 3, 4, 3),
    Sketcher.Constraint("Equal", 0, 4),
    Sketcher.Constraint("Equal", 5, 7),
    Sketcher.Constraint("Equal", 9, 11),
    Sketcher.Constraint("Parallel", 6, 10),
    Sketcher.Constraint("Parallel", 2, 14),
    Sketcher.Constraint("Horizontal", 11, 3, 5, 1),
    Sketcher.Constraint("Horizontal", 9, 3, 6, 2),
    Sketcher.Constraint("Radius", 0, Q("3.8 mm")),
    Sketcher.Constraint("Radius", 5, Q("6.2 mm")),
    Sketcher.Constraint("Radius", 8, Q("2.6 mm")),
    Sketcher.Constraint("DistanceX", 0, 3, -1, 1, Q("5 mm")),
    Sketcher.Constraint("DistanceX", -1, 1, 5, 3, Q("9 mm")),
    Sketcher.Constraint("DistanceX", 7, 3, -1, 1, Q("9 mm")),
    Sketcher.Constraint("DistanceX", -1, 1, 4, 3, Q("4.6 mm")),
    Sketcher.Constraint("Angle", 2, Q("-3.38 deg")),
    Sketcher.Constraint("DistanceY", 1, 2, 1, 1, Q("1.564766 mm")),
    Sketcher.Constraint("DistanceY", 3, 1, 3, 2, Q("2.013627 mm")),
    Sketcher.Constraint("DistanceY", 13, 2, 13, 1, Q("0.740663 mm")),
    Sketcher.Constraint("DistanceY", 4, 3, -1, 1, Q("55.63467 mm")),
    Sketcher.Constraint("DistanceX", 9, 2, -1, 1, Q("1.72514 mm")),
])
sketch10.setExpression("Constraints[31]", "Params.sketch10_radius")
sketch10.setExpression("Constraints[32]", "Params.sketch10_radius2")
sketch10.setExpression("Constraints[33]", "Params.sketch10_radius3")
pad5 = body.newObject("PartDesign::Pad", "Pad004")
pad5.Profile = sketch10
pad5.setExpression("Length", "Params.pad5_length")

# Sketch on XY plane
sketch11 = body.newObject("Sketcher::SketchObject", "Sketch010")
sketch11.AttachmentSupport = (doc.getObject("XY_Plane"), [""])
sketch11.MapMode = "FlatFace"
sketch11.AttachmentOffset = App.Placement(App.Vector(0, 0, 14), App.Rotation())
sketch11.addGeometry([
    Part.LineSegment(App.Vector(7.2, -56.375333, 0), App.Vector(7.2, -55.63467, 0)),  # 0
    Part.ArcOfCircle(Part.Circle(App.Vector(4.6, -55.63467, 0), App.Vector(0, 0, 1), 2.6), math.radians(0), math.radians(63.896119)),  # 1
    Part.ArcOfCircle(Part.Circle(App.Vector(9, -46.654692, 0), App.Vector(0, 0, 1), 7.4), math.radians(-171.765641), math.radians(-116.103881)),  # 2
    Part.LineSegment(App.Vector(1.67629, -47.714538, 0), App.Vector(-1.72514, -47.25768, 0)),  # 3
    Part.ArcOfCircle(Part.Circle(App.Vector(-9, -45.902536, 0), App.Vector(0, 0, 1), 7.4), math.radians(-66.421822), math.radians(-10.551985)),  # 4
    Part.ArcOfCircle(Part.Circle(App.Vector(-5, -55.067688, 0), App.Vector(0, 0, 1), 2.6), math.radians(113.578178), math.radians(180)),  # 5
    Part.LineSegment(App.Vector(-7.6, -55.067688, 0), App.Vector(-7.6, -55.501235, 0)),  # 6
    Part.LineSegment(App.Vector(-7.6, -55.501235, 0), App.Vector(7.2, -56.375333, 0)),  # 7
], False)
sketch11.addConstraint([
    Sketcher.Constraint("Tangent", 0, 2, 1, 1),
    Sketcher.Constraint("Tangent", 1, 2, 2, 2),
    Sketcher.Constraint("Coincident", 2, 1, 3, 1),
    Sketcher.Constraint("Coincident", 3, 2, 4, 2),
    Sketcher.Constraint("Tangent", 4, 1, 5, 1),
    Sketcher.Constraint("Tangent", 5, 2, 6, 1),
    Sketcher.Constraint("Coincident", 6, 2, 7, 1),
    Sketcher.Constraint("Coincident", 7, 2, 0, 1),
    Sketcher.Constraint("Vertical", 0),
    Sketcher.Constraint("Vertical", 6),
    Sketcher.Constraint("Equal", 2, 4),
    Sketcher.Constraint("Equal", 1, 5),
    Sketcher.Constraint("Radius", 1, Q("2.6 mm")),
    Sketcher.Constraint("Radius", 2, Q("7.4 mm")),
    Sketcher.Constraint("DistanceX", -1, 1, 2, 3, Q("9 mm")),
    Sketcher.Constraint("DistanceX", 4, 3, -1, 1, Q("9 mm")),
    Sketcher.Constraint("DistanceX", 5, 3, -1, 1, Q("5 mm")),
    Sketcher.Constraint("DistanceX", -1, 1, 1, 3, Q("4.6 mm")),
    Sketcher.Constraint("Angle", 7, Q("-3.38 deg")),
    Sketcher.Constraint("DistanceY", 6, 2, 4, 3, Q("9.598699 mm")),
    Sketcher.Constraint("DistanceY", 0, 1, 0, 2, Q("0.740663 mm")),
    Sketcher.Constraint("DistanceY", 1, 3, -1, 1, Q("55.63467 mm")),
    Sketcher.Constraint("DistanceX", -1, 1, 2, 1, Q("1.67629 mm")),
    Sketcher.Constraint("DistanceX", 3, 2, -1, 1, Q("1.72514 mm")),
])
sketch11.setExpression("Constraints[12]", "Params.sketch11_radius")
sketch11.setExpression("Constraints[13]", "Params.sketch11_radius2")
pocket6 = body.newObject("PartDesign::Pocket", "Pocket005")
pocket6.Profile = sketch11
pocket6.setExpression("Length", "Params.pocket6_length")
pocket6.Reversed = True

# Sketch on XY plane
sketch12 = body.newObject("Sketcher::SketchObject", "Sketch011")
sketch12.AttachmentSupport = (doc.getObject("XY_Plane"), [""])
sketch12.MapMode = "FlatFace"
sketch12.AttachmentOffset = App.Placement(App.Vector(0, 0, 20), App.Rotation())
sketch12.addGeometry([
    Part.LineSegment(App.Vector(2.8, -46.654692, 0), App.Vector(-2.8, -45.902536, 0)),  # 0
    Part.ArcOfCircle(Part.Circle(App.Vector(-9, -45.902536, 0), App.Vector(0, 0, 1), 6.2), math.radians(-66.421822), math.radians(0)),  # 1
    Part.ArcOfCircle(Part.Circle(App.Vector(-5, -55.067688, 0), App.Vector(0, 0, 1), 3.8), math.radians(113.578178), math.radians(180)),  # 2
    Part.LineSegment(App.Vector(-8.8, -55.067688, 0), App.Vector(-8.8, -56.632453, 0)),  # 3
    Part.LineSegment(App.Vector(-8.8, -56.632453, 0), App.Vector(8.4, -57.648297, 0)),  # 4
    Part.LineSegment(App.Vector(8.4, -57.648297, 0), App.Vector(8.4, -55.63467, 0)),  # 5
    Part.ArcOfCircle(Part.Circle(App.Vector(4.6, -55.63467, 0), App.Vector(0, 0, 1), 3.8), math.radians(0), math.radians(63.896119)),  # 6
    Part.ArcOfCircle(Part.Circle(App.Vector(9, -46.654692, 0), App.Vector(0, 0, 1), 6.2), math.radians(180), math.radians(243.896119)),  # 7
], False)
sketch12.addConstraint([
    Sketcher.Constraint("Coincident", 0, 2, 1, 2),
    Sketcher.Constraint("Tangent", 1, 1, 2, 1),
    Sketcher.Constraint("Tangent", 2, 2, 3, 1),
    Sketcher.Constraint("Coincident", 3, 2, 4, 1),
    Sketcher.Constraint("Coincident", 4, 2, 5, 1),
    Sketcher.Constraint("Tangent", 5, 2, 6, 1),
    Sketcher.Constraint("Tangent", 6, 2, 7, 2),
    Sketcher.Constraint("Coincident", 7, 1, 0, 1),
    Sketcher.Constraint("Vertical", 3),
    Sketcher.Constraint("Vertical", 5),
    Sketcher.Constraint("Equal", 2, 6),
    Sketcher.Constraint("Equal", 1, 7),
    Sketcher.Constraint("Horizontal", 1, 3, 0, 2),
    Sketcher.Constraint("Radius", 1, Q("6.2 mm")),
    Sketcher.Constraint("Radius", 2, Q("3.8 mm")),
    Sketcher.Constraint("DistanceX", 1, 3, -1, 1, Q("9 mm")),
    Sketcher.Constraint("DistanceX", 2, 3, -1, 1, Q("5 mm")),
    Sketcher.Constraint("DistanceX", -1, 1, 7, 3, Q("9 mm")),
    Sketcher.Constraint("DistanceX", -1, 1, 6, 3, Q("4.6 mm")),
    Sketcher.Constraint("Angle", 4, Q("-3.38 deg")),
    Sketcher.Constraint("DistanceY", 3, 2, 3, 1, Q("1.564766 mm")),
    Sketcher.Constraint("DistanceY", 5, 1, 5, 2, Q("2.013627 mm")),
    Sketcher.Constraint("DistanceY", 6, 3, -1, 1, Q("55.63467 mm")),
    Sketcher.Constraint("Distance", 0, Q("5.650287 mm")),
])
sketch12.setExpression("Constraints[13]", "Params.sketch12_radius")
sketch12.setExpression("Constraints[14]", "Params.sketch12_radius2")
pocket7 = body.newObject("PartDesign::Pocket", "Pocket006")
pocket7.Profile = sketch12
pocket7.setExpression("Length", "Params.pocket7_length")
pocket7.Reversed = True

# Sketch on XY plane
sketch13 = body.newObject("Sketcher::SketchObject", "Sketch012")
sketch13.AttachmentSupport = (doc.getObject("XY_Plane"), [""])
sketch13.MapMode = "FlatFace"
sketch13.AttachmentOffset = App.Placement(App.Vector(0, 0, 20), App.Rotation())
add_polygon(sketch13, [(-1.6, 14.13396), (-1.6, 12.13396), (1.6, 12.13396), (1.6, 14.13396)])  # lines 0-3
add_polygon(sketch13, [(-1.6, -27.86604), (-1.6, -29.86604), (1.6, -29.86604), (1.6, -27.86604)])  # lines 4-7
sketch13.addConstraint([
    Sketcher.Constraint("Vertical", 0),
    Sketcher.Constraint("Horizontal", 1),
    Sketcher.Constraint("Vertical", 2),
    Sketcher.Constraint("Horizontal", 3),
    Sketcher.Constraint("Vertical", 4),
    Sketcher.Constraint("Horizontal", 5),
    Sketcher.Constraint("Vertical", 6),
    Sketcher.Constraint("Horizontal", 7),
    Sketcher.Constraint("Vertical", 3, 2, 4, 2),
    Sketcher.Constraint("Vertical", 2, 2, 5, 2),
    Sketcher.Constraint("Equal", 2, 4),
    Sketcher.Constraint("DistanceY", 0, 2, 0, 1, Q("2 mm")),
    Sketcher.Constraint("DistanceX", 1, 1, 1, 2, Q("3.2 mm")),
    Sketcher.Constraint("DistanceY", 4, 2, 0, 2, Q("42 mm")),
    Sketcher.Constraint("DistanceX", 0, 2, -1, 1, Q("1.6 mm")),
    Sketcher.Constraint("DistanceY", -1, 1, 0, 2, Q("12.13396 mm")),
])
sketch13.setExpression("Constraints[19]", "Params.sketch13_height")
sketch13.setExpression("Constraints[20]", "Params.sketch13_width")
pocket8 = body.newObject("PartDesign::Pocket", "Pocket007")
pocket8.Profile = sketch13
pocket8.setExpression("Length", "Params.pocket8_length")

doc.recompute()
